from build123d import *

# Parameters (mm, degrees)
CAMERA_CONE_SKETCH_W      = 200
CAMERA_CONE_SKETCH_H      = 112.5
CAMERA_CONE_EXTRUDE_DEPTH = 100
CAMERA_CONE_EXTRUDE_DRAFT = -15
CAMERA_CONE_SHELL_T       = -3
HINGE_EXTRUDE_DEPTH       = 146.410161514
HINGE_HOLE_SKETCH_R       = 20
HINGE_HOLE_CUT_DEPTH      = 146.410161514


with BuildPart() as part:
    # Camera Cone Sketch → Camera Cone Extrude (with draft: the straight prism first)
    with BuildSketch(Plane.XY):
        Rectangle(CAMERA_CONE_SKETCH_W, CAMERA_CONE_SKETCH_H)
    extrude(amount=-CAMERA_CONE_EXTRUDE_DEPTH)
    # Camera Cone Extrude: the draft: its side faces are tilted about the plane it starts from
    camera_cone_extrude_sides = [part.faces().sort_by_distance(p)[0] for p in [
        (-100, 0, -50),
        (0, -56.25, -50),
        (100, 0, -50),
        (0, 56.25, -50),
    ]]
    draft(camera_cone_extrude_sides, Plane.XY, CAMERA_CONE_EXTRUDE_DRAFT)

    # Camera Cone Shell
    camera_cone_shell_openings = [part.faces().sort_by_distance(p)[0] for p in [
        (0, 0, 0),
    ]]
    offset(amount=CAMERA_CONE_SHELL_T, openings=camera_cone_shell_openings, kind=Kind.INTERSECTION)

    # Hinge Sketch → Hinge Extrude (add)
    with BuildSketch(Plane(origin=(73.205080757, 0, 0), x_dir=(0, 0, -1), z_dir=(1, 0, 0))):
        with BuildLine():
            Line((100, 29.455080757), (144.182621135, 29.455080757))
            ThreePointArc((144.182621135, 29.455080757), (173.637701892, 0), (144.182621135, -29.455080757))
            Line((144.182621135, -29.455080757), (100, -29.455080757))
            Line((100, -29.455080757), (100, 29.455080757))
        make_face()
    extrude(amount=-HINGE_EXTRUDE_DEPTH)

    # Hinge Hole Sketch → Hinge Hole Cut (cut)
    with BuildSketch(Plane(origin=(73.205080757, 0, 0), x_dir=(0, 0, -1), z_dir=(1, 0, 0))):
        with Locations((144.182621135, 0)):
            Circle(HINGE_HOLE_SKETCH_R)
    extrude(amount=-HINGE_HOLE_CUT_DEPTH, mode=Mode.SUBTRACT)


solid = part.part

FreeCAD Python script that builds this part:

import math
import FreeCAD as App
import Part
import Sketcher

V = App.Vector
Q = App.Units.Quantity


def faces_at(feature, points):
    """Names of the faces that lie closest to the given points."""
    faces = feature.Shape.Faces
    near = lambda p: min(range(len(faces)), key=lambda i: faces[i].distToShape(Part.Vertex(*p))[0])
    return sorted({f"Face{near(p) + 1}" for p in points})


def add_polygon(sketch, points):
    """Adds a closed chain of lines whose ends are joined by coincident constraints."""
    first, n = sketch.GeometryCount, len(points)
    for a, b in zip(points, points[1:] + points[:1]):
        sketch.addGeometry(Part.LineSegment(App.Vector(*a, 0), App.Vector(*b, 0)), False)
    for i in range(n):
        sketch.addConstraint(Sketcher.Constraint("Coincident", first + i, 2, first + (i + 1) % n, 1))

doc = App.newDocument("Part")
body = doc.addObject("PartDesign::Body", "Body")

# Sketch on XY plane
sketch1 = body.newObject("Sketcher::SketchObject", "Sketch")
sketch1.AttachmentSupport = (doc.getObject("XY_Plane"), [""])
sketch1.MapMode = "FlatFace"
add_polygon(sketch1, [(-100, 56), (-100, -56), (100, -56), (100, 56)])  # lines 0-3
sketch1.addConstraint(Sketcher.Constraint("Vertical", 0))
sketch1.addConstraint(Sketcher.Constraint("Horizontal", 1))
sketch1.addConstraint(Sketcher.Constraint("Vertical", 2))
sketch1.addConstraint(Sketcher.Constraint("Horizontal", 3))
sketch1.addConstraint(Sketcher.Constraint("Symmetric", 0, 2, 2, 2, -1, 1))
sketch1.addConstraint(Sketcher.Constraint("DistanceX", 1, 1, 1, 2, Q("200 mm")))
sketch1.addConstraint(Sketcher.Constraint("DistanceY", 0, 2, 0, 1, Q("112.5 mm")))
pad1 = body.newObject("PartDesign::Pad", "Pad")
pad1.Profile = sketch1
pad1.Length = 100
pad1.Reversed = True
doc.recompute()

draft = body.newObject("PartDesign::Draft", "Draft")
draft.Base = (pad1, faces_at(pad1, [
    (-100, 0, -50),
    (0, -56.25, -50),
    (100, 0, -50),
    (0, 56.25, -50),
]))
draft.NeutralPlane = (doc.getObject("XY_Plane"), [""])
draft.Angle = 15
draft.Reversed = True
doc.recompute()

thickness = body.newObject("PartDesign::Thickness", "Thickness")
thickness.Base = (draft, faces_at(draft, [(0, 0, 0)]))
thickness.Value = 3
thickness.Reversed = True
thickness.Join = "Intersection"

# Sketch on YZ plane
sketch2 = body.newObject("Sketcher::SketchObject", "Sketch001")
sketch2.AttachmentSupport = (doc.getObject("YZ_Plane"), [""])
sketch2.MapMode = "FlatFace"
sketch2.AttachmentOffset = App.Placement(V(0, 0, 73.205081), App.Rotation())
sketch2.addGeometry(Part.LineSegment(V(29, -144, 0), V(29, -100, 0)), False)
sketch2.addGeometry(Part.LineSegment(V(29, -100, 0), V(-29, -100, 0)), False)
sketch2.addGeometry(Part.LineSegment(V(-29, -100, 0), V(-29, -144, 0)), False)
sketch2.addGeometry(Part.ArcOfCircle(Part.Circle(V(0, -144, 0), V(0, 0, 1), 29), math.radians(180), math.radians(360)), False)
sketch2.addConstraint(Sketcher.Constraint("Coincident", 0, 2, 1, 1))
sketch2.addConstraint(Sketcher.Constraint("Coincident", 1, 2, 2, 1))
sketch2.addConstraint(Sketcher.Constraint("Tangent", 2, 2, 3, 1))
sketch2.addConstraint(Sketcher.Constraint("Tangent", 3, 2, 0, 1))
sketch2.addConstraint(Sketcher.Constraint("Vertical", 0))
sketch2.addConstraint(Sketcher.Constraint("Horizontal", 1))
sketch2.addConstraint(Sketcher.Constraint("Vertical", 2))
sketch2.addConstraint(Sketcher.Constraint("PointOnObject", 3, 3, -2))
sketch2.addConstraint(Sketcher.Constraint("DistanceY", 0, 2, -1, 1, Q("100 mm")))
sketch2.addConstraint(Sketcher.Constraint("Radius", 3, Q("29.455081 mm")))
sketch2.addConstraint(Sketcher.Constraint("DistanceY", 0, 1, 0, 2, Q("44.182621 mm")))
pad2 = body.newObject("PartDesign::Pad", "Pad001")
pad2.Profile = sketch2
pad2.Length = 146.410162
pad2.Reversed = True

# Sketch on YZ plane
sketch3 = body.newObject("Sketcher::SketchObject", "Sketch002")
sketch3.AttachmentSupport = (doc.getObject("YZ_Plane"), [""])
sketch3.MapMode = "FlatFace"
sketch3.AttachmentOffset = App.Placement(V(0, 0, 73.205081), App.Rotation())
sketch3.addGeometry(Part.Circle(V(0, -144, 0), V(0, 0, 1), 20), False)
sketch3.addConstraint(Sketcher.Constraint("PointOnObject", 0, 3, -2))
sketch3.addConstraint(Sketcher.Constraint("Diameter", 0, Q("40 mm")))
sketch3.addConstraint(Sketcher.Constraint("DistanceY", 0, 3, -1, 1, Q("144.182621 mm")))
pocket1 = body.newObject("PartDesign::Pocket", "Pocket")
pocket1.Profile = sketch3
pocket1.Length = 146.410162

doc.recompute()
